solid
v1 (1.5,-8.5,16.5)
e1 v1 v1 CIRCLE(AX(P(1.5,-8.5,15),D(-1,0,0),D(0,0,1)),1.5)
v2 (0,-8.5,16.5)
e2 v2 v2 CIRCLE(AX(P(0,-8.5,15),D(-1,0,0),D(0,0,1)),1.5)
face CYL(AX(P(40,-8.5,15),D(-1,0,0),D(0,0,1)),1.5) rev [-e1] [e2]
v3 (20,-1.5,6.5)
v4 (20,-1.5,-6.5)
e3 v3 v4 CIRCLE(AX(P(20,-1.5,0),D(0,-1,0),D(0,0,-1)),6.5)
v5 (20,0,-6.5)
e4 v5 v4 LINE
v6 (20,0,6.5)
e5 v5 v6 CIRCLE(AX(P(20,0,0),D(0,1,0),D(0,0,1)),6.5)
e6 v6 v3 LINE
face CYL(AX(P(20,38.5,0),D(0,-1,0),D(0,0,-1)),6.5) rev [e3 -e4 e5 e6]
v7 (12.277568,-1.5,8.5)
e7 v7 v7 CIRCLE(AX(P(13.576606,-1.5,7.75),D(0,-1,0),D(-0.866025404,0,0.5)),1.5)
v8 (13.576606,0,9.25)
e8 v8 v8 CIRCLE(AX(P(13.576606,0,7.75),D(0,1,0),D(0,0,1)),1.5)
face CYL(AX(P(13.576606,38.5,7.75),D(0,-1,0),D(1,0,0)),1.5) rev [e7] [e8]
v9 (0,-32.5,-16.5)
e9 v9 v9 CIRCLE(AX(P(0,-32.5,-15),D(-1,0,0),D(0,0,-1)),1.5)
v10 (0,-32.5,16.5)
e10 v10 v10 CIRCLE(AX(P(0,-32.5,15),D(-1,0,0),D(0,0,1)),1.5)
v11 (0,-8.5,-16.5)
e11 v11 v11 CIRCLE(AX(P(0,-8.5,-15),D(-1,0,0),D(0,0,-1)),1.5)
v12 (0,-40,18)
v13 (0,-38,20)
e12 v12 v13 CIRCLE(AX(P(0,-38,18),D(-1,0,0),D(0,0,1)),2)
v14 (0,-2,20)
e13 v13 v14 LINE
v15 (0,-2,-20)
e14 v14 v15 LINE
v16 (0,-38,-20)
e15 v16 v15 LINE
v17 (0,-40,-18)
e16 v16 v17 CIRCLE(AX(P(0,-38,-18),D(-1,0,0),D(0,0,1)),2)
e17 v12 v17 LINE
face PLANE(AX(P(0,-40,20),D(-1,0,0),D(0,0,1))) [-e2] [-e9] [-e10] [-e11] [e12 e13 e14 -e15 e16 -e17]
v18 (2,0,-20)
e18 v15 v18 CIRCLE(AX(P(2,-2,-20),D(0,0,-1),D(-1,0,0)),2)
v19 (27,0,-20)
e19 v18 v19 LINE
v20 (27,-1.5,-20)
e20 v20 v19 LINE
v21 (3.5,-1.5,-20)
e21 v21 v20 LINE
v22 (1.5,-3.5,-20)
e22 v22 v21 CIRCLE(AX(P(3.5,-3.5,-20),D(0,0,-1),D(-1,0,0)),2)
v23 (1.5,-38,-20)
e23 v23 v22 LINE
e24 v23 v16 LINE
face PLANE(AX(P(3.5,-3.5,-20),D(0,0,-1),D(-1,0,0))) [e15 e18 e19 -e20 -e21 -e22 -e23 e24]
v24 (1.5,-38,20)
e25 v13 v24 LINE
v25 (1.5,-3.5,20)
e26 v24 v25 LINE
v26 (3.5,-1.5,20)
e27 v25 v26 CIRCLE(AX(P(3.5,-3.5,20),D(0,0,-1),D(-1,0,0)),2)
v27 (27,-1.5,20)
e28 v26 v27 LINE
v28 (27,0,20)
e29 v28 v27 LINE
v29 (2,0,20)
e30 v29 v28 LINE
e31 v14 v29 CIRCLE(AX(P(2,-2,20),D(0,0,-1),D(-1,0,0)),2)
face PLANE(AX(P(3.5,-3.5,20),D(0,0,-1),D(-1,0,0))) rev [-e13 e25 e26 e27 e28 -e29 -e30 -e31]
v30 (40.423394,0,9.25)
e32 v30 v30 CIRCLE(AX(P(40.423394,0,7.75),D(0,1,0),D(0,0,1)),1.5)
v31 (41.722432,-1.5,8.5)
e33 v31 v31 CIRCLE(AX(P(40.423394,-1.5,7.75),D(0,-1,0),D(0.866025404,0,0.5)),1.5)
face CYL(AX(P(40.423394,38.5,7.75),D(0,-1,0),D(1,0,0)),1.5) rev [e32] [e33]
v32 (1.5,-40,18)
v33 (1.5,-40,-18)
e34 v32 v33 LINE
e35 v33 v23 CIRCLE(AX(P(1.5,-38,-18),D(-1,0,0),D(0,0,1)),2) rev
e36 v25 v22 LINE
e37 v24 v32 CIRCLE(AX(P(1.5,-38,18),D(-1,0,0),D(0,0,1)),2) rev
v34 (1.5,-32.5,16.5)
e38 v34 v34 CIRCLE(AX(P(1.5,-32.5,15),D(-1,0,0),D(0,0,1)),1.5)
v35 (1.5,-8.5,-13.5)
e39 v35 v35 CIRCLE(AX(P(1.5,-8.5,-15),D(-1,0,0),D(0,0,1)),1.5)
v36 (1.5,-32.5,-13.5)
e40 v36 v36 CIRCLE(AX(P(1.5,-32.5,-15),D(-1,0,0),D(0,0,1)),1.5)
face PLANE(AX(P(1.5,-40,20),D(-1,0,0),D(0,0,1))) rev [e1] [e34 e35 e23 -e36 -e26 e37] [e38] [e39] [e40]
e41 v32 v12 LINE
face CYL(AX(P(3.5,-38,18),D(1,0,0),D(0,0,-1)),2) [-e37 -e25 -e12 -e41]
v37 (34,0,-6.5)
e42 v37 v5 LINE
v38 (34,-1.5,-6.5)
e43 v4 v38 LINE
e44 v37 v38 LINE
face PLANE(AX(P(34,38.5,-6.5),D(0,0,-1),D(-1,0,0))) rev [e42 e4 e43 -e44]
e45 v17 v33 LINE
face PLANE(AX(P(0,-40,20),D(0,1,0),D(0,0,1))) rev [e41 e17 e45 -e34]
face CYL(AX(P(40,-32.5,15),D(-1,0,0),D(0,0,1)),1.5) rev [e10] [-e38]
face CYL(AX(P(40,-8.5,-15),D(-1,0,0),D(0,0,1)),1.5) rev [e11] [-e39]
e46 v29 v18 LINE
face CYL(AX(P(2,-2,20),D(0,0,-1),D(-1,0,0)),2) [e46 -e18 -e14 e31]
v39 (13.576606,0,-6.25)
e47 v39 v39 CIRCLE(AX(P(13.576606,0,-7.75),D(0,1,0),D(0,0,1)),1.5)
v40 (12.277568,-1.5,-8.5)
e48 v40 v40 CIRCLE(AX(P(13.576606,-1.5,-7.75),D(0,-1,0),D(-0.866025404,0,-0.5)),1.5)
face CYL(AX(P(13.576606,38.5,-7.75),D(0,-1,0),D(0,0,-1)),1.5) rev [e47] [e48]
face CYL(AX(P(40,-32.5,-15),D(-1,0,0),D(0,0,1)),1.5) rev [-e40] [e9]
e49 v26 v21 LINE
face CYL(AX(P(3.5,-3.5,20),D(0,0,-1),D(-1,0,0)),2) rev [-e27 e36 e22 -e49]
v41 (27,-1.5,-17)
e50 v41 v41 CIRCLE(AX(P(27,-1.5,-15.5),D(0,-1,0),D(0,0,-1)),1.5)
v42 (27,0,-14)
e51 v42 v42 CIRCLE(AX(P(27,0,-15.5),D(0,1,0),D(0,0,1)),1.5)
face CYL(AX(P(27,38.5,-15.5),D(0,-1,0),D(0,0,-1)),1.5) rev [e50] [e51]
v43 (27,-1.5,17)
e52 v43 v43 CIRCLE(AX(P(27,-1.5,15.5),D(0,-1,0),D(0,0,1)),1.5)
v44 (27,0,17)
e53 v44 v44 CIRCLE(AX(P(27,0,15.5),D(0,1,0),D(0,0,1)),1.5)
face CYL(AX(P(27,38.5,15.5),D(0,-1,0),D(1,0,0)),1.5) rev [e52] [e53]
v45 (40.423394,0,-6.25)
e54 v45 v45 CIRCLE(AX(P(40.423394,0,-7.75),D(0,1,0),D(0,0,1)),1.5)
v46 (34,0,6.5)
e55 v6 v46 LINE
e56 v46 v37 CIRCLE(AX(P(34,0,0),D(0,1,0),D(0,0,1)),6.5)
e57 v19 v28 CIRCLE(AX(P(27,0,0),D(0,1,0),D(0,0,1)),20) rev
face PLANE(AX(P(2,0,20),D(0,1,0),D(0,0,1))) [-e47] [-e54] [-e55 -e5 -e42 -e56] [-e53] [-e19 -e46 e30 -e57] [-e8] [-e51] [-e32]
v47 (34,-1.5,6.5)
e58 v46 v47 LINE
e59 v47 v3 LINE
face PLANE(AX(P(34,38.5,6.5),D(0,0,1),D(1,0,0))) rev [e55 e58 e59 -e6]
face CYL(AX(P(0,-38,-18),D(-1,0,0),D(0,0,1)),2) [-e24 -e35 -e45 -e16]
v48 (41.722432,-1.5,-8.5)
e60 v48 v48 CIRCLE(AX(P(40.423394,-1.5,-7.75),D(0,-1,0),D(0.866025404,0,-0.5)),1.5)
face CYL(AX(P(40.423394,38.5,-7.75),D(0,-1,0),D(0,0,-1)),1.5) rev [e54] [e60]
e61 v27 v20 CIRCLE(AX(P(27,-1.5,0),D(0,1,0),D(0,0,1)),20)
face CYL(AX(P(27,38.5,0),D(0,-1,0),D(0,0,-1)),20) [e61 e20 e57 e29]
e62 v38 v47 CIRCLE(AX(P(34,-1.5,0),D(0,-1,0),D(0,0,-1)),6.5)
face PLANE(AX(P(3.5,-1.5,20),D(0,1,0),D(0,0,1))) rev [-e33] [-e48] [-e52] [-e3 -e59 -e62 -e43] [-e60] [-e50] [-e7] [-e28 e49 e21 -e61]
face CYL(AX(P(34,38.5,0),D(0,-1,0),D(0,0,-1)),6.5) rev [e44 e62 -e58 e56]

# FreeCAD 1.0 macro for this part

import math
import FreeCAD as App
import Part
import Sketcher
from FreeCAD import Vector


def edges_at(feature, points):
    """Names of the edges that pass closest to the given points."""
    edges = feature.Shape.Edges
    near = lambda p: min(range(len(edges)), key=lambda i: edges[i].distToShape(Part.Vertex(*p))[0])
    return sorted({f"Edge{near(p) + 1}" for p in points})

doc = App.newDocument("Part")
body = doc.addObject("PartDesign::Body", "Body")

# Sketch on XY plane
sketch1 = body.newObject("Sketcher::SketchObject", "Sketch")
sketch1.AttachmentSupport = (doc.getObject("XY_Plane"), [""])
sketch1.MapMode = "FlatFace"
sketch1.addGeometry([
    Part.LineSegment(Vector(0, -2, 0), Vector(0, -40, 0)),  # 0
    Part.LineSegment(Vector(0, -40, 0), Vector(1.5, -40, 0)),  # 1
    Part.LineSegment(Vector(1.5, -40, 0), Vector(1.5, -3.5, 0)),  # 2
    Part.ArcOfCircle(Part.Circle(Vector(3.5, -3.5, 0), Vector(0, 0, 1), 2), math.radians(90), math.radians(180)),  # 3
    Part.LineSegment(Vector(3.5, -1.5, 0), Vector(50, -1.5, 0)),  # 4
    Part.LineSegment(Vector(50, -1.5, 0), Vector(50, 0, 0)),  # 5
    Part.LineSegment(Vector(50, 0, 0), Vector(2, 0, 0)),  # 6
    Part.ArcOfCircle(Part.Circle(Vector(2, -2, 0), Vector(0, 0, 1), 2), math.radians(90), math.radians(180)),  # 7
], False)
sketch1.addConstraint([
    Sketcher.Constraint("Coincident", 0, 2, 1, 1),
    Sketcher.Constraint("Coincident", 1, 2, 2, 1),
    Sketcher.Constraint("Tangent", 2, 2, 3, 2),
    Sketcher.Constraint("Tangent", 3, 1, 4, 1),
    Sketcher.Constraint("Coincident", 4, 2, 5, 1),
    Sketcher.Constraint("Coincident", 5, 2, 6, 1),
    Sketcher.Constraint("Tangent", 6, 2, 7, 1),
    Sketcher.Constraint("Tangent", 7, 2, 0, 1),
    Sketcher.Constraint("Vertical", 0),
    Sketcher.Constraint("Horizontal", 1),
    Sketcher.Constraint("Vertical", 2),
    Sketcher.Constraint("Horizontal", 4),
    Sketcher.Constraint("Vertical", 5),
    Sketcher.Constraint("Horizontal", 6),
    Sketcher.Constraint("Equal", 3, 7),
    Sketcher.Constraint("PointOnObject", 0, 2, -2),
    Sketcher.Constraint("PointOnObject", 5, 2, -1),
    Sketcher.Constraint("Equal", 1, 5),
    Sketcher.Constraint("Radius", 3, 2.0),
    Sketcher.Constraint("DistanceX", 6, 2, 6, 1, 48.0),
    Sketcher.Constraint("DistanceY", 0, 2, 0, 1, 38.0),
    Sketcher.Constraint("DistanceX", 1, 1, 1, 2, 1.5),
])
pad1 = body.newObject("PartDesign::Pad", "Pad")
pad1.Profile = sketch1
pad1.Length = 40
pad1.Midplane = True

# Sketch on XZ plane
sketch2 = body.newObject("Sketcher::SketchObject", "Sketch001")
sketch2.AttachmentSupport = (doc.getObject("XZ_Plane"), [""])
sketch2.MapMode = "FlatFace"
sketch2.AttachmentOffset = App.Placement(Vector(0, 0, 1.5), App.Rotation())
sketch2.addGeometry([
    Part.LineSegment(Vector(50, 20, 0), Vector(27, 20, 0)),  # 0
    Part.ArcOfCircle(Part.Circle(Vector(27, 0, 0), Vector(0, 0, 1), 20), math.radians(-90), math.radians(90)),  # 1
    Part.LineSegment(Vector(27, -20, 0), Vector(50, -20, 0)),  # 2
    Part.LineSegment(Vector(50, -20, 0), Vector(50, 20, 0)),  # 3
    Part.LineSegment(Vector(20, -6.5, 0), Vector(34, -6.5, 0)),  # 4
    Part.ArcOfCircle(Part.Circle(Vector(34, 0, 0), Vector(0, 0, 1), 6.5), math.radians(-90), math.radians(90)),  # 5
    Part.LineSegment(Vector(34, 6.5, 0), Vector(20, 6.5, 0)),  # 6
    Part.ArcOfCircle(Part.Circle(Vector(20, 0, 0), Vector(0, 0, 1), 6.5), math.radians(90), math.radians(270)),  # 7
], False)
sketch2.addConstraint([
    Sketcher.Constraint("Tangent", 0, 2, 1, 2),
    Sketcher.Constraint("Tangent", 1, 1, 2, 1),
    Sketcher.Constraint("Coincident", 2, 2, 3, 1),
    Sketcher.Constraint("Coincident", 3, 2, 0, 1),
    Sketcher.Constraint("Tangent", 4, 2, 5, 1),
    Sketcher.Constraint("Tangent", 5, 2, 6, 1),
    Sketcher.Constraint("Tangent", 6, 2, 7, 1),
    Sketcher.Constraint("Tangent", 7, 2, 4, 1),
    Sketcher.Constraint("Horizontal", 0),
    Sketcher.Constraint("Horizontal", 2),
    Sketcher.Constraint("Vertical", 3),
    Sketcher.Constraint("Horizontal", 4),
    Sketcher.Constraint("Horizontal", 6),
    Sketcher.Constraint("PointOnObject", 1, 3, -1),
    Sketcher.Constraint("PointOnObject", 5, 3, -1),
    Sketcher.Constraint("Radius", 1, 20.0),
    Sketcher.Constraint("Radius", 5, 6.5),
    Sketcher.Constraint("DistanceX", 0, 2, 0, 1, 23.0),
    Sketcher.Constraint("DistanceX", 4, 1, 4, 2, 14.0),
    Sketcher.Constraint("DistanceX", -1, 1, 1, 3, 27.0),
    Sketcher.Constraint("DistanceX", -1, 1, 5, 3, 34.0),
])
pocket1 = body.newObject("PartDesign::Pocket", "Pocket")
pocket1.Profile = sketch2
pocket1.Length = 40

# Sketch on XZ plane
sketch3 = body.newObject("Sketcher::SketchObject", "Sketch002")
sketch3.AttachmentSupport = (doc.getObject("XZ_Plane"), [""])
sketch3.MapMode = "FlatFace"
sketch3.AttachmentOffset = App.Placement(Vector(0, 0, 1.5), App.Rotation())
sketch3.addGeometry(Part.Circle(Vector(27, -15.5, 0), Vector(0, 0, 1), 1.5), False)
sketch3.addConstraint([
    Sketcher.Constraint("Diameter", 0, 3.0),
    Sketcher.Constraint("DistanceX", -1, 1, 0, 3, 27.0),
    Sketcher.Constraint("DistanceY", 0, 3, -1, 1, 15.5),
])
pocket2 = body.newObject("PartDesign::Pocket", "Pocket001")
pocket2.Profile = sketch3
pocket2.Length = 40

# Sketch on YZ plane
sketch4 = body.newObject("Sketcher::SketchObject", "Sketch003")
sketch4.AttachmentSupport = (doc.getObject("YZ_Plane"), [""])
sketch4.MapMode = "FlatFace"
sketch4.addGeometry([
    Part.Circle(Vector(-8.5, 15, 0), Vector(0, 0, 1), 1.5),
    Part.Circle(Vector(-32.5, 15, 0), Vector(0, 0, 1), 1.5),
    Part.Circle(Vector(-32.5, -15, 0), Vector(0, 0, 1), 1.5),
    Part.Circle(Vector(-8.5, -15, 0), Vector(0, 0, 1), 1.5),
], False)
sketch4.addConstraint([
    Sketcher.Constraint("Equal", 0, 1),
    Sketcher.Constraint("Equal", 1, 2),
    Sketcher.Constraint("Equal", 2, 3),
    Sketcher.Constraint("Symmetric", 1, 3, 2, 3, -1),
    Sketcher.Constraint("Symmetric", 0, 3, 3, 3, -1),
    Sketcher.Constraint("Horizontal", 0, 3, 1, 3),
    Sketcher.Constraint("Diameter", 0, 3.0),
    Sketcher.Constraint("DistanceY", -1, 1, 0, 3, 15.0),
    Sketcher.Constraint("DistanceX", 1, 3, 0, 3, 24.0),
    Sketcher.Constraint("DistanceX", 0, 3, -1, 1, 8.5),
])
pocket3 = body.newObject("PartDesign::Pocket", "Pocket002")
pocket3.Profile = sketch4
pocket3.Length = 40
pocket3.Reversed = True
doc.recompute()

fillet = body.newObject("PartDesign::Fillet", "Fillet")
fillet.Base = (pocket3, edges_at(pocket3, [(0.75, -40, 20), (0.75, -40, -20)]))
fillet.Radius = 2
doc.recompute()

datumline = body.newObject("PartDesign::Line", "DatumLine")
datumline.Placement = App.Placement(Vector(27, 0, 0), App.Rotation(Vector(0, 0, 1), Vector(0, 1, 0)))
polarpattern = body.newObject("PartDesign::PolarPattern", "PolarPattern")
polarpattern.Originals = [pocket2]
polarpattern.Axis = (datumline, [""])
polarpattern.Angle = 360
polarpattern.Occurrences = 6
body.Tip = polarpattern

doc.recompute()
